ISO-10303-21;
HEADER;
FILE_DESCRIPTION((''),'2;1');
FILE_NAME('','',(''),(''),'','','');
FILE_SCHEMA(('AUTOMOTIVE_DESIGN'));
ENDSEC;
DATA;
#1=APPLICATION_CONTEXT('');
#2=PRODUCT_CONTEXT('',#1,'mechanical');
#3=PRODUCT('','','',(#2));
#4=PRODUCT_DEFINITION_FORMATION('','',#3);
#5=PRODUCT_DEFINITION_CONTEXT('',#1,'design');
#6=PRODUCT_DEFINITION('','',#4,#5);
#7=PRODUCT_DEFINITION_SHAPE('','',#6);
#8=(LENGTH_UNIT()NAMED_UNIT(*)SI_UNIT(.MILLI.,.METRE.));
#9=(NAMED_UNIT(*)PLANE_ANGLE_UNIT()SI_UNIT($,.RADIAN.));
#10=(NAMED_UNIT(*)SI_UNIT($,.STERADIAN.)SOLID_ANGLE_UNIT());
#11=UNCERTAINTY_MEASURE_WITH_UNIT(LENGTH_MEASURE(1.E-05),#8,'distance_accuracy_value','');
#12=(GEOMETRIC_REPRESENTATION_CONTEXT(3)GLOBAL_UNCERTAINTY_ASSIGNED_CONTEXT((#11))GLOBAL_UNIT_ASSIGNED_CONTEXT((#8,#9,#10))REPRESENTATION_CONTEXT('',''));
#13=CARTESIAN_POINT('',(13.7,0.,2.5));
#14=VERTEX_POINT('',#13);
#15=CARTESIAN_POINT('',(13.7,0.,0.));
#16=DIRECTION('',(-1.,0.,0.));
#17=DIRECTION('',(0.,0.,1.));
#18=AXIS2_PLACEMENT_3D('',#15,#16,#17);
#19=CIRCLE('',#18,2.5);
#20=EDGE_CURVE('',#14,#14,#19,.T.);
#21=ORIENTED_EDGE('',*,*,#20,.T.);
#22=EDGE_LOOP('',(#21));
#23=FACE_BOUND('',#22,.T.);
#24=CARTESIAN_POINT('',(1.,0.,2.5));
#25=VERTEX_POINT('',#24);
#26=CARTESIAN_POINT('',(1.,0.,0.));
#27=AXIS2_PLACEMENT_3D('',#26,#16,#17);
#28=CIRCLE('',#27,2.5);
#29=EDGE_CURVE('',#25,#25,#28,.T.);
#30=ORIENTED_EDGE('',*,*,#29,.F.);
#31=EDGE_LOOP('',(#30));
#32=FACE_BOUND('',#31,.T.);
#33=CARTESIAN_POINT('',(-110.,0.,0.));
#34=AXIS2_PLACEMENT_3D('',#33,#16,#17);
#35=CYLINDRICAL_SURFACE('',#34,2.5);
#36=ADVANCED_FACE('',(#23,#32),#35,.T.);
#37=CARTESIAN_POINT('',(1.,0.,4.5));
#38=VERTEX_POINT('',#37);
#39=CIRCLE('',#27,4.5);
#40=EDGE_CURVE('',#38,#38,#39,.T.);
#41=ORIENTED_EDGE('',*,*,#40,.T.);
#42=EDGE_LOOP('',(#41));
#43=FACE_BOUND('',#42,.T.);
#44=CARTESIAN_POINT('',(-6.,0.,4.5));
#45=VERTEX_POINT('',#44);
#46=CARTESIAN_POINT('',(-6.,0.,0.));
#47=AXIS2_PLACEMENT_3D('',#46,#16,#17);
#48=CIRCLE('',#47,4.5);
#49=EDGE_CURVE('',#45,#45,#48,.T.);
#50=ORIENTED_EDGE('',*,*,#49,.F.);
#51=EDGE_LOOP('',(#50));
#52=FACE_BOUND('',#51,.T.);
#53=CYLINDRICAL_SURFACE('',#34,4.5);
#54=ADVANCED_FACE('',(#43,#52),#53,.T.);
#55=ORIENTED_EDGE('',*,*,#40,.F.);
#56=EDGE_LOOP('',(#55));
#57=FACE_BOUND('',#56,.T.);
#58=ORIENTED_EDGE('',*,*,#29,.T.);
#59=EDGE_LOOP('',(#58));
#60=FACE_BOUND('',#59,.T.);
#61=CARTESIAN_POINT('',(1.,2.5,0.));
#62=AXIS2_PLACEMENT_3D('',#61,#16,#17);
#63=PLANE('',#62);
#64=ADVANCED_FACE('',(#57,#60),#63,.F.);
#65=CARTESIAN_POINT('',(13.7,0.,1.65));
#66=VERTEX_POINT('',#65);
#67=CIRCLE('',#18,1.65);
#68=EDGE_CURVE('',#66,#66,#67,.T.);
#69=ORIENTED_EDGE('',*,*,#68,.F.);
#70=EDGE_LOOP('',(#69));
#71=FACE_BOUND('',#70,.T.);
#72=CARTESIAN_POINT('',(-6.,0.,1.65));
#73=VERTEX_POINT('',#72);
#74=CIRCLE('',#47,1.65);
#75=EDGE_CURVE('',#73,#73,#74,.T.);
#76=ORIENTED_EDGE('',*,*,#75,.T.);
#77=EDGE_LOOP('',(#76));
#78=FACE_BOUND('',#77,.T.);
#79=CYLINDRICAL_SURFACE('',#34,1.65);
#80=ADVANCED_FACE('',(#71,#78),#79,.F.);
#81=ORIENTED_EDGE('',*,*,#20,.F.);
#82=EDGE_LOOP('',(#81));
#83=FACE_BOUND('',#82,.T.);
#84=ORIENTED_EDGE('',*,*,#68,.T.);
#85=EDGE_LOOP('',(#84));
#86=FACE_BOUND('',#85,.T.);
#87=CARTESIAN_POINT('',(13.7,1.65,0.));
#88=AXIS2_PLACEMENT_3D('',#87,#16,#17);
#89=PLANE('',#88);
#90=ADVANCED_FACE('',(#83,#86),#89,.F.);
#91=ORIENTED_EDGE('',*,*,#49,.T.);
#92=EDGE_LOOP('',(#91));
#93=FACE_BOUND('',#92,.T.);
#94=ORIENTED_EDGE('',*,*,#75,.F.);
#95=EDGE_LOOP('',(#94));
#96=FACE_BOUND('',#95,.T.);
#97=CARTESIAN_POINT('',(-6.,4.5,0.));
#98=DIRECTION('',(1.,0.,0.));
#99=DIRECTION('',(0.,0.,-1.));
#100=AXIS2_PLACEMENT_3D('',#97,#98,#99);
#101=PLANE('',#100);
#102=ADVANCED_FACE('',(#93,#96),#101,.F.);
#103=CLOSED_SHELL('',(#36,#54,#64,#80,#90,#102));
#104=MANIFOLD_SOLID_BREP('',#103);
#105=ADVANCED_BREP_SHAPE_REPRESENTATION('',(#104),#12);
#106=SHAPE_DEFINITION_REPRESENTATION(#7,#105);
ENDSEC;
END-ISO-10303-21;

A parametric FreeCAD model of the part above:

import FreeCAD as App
import Part
import Sketcher
Q = App.Units.Quantity

doc = App.newDocument("Part")
body = doc.addObject("PartDesign::Body", "Body")

# Sketch on XY plane
sketch1 = body.newObject("Sketcher::SketchObject", "Sketch")
sketch1.AttachmentSupport = (doc.getObject("XY_Plane"), [""])
sketch1.MapMode = "FlatFace"
sketch1.addGeometry([
    Part.LineSegment(App.Vector(-6, 1.6, 0), App.Vector(13.7, 1.6, 0)),  # 0
    Part.LineSegment(App.Vector(13.7, 1.6, 0), App.Vector(13.7, 2.5, 0)),  # 1
    Part.LineSegment(App.Vector(13.7, 2.5, 0), App.Vector(1, 2.5, 0)),  # 2
    Part.LineSegment(App.Vector(1, 2.5, 0), App.Vector(1, 4.5, 0)),  # 3
    Part.LineSegment(App.Vector(1, 4.5, 0), App.Vector(-6, 4.5, 0)),  # 4
    Part.LineSegment(App.Vector(-6, 4.5, 0), App.Vector(-6, 1.6, 0)),  # 5
], False)
sketch1.addConstraint([
    Sketcher.Constraint("Coincident", 0, 2, 1, 1),
    Sketcher.Constraint("Coincident", 1, 2, 2, 1),
    Sketcher.Constraint("Coincident", 2, 2, 3, 1),
    Sketcher.Constraint("Coincident", 3, 2, 4, 1),
    Sketcher.Constraint("Coincident", 4, 2, 5, 1),
    Sketcher.Constraint("Coincident", 5, 2, 0, 1),
    Sketcher.Constraint("Horizontal", 0),
    Sketcher.Constraint("Vertical", 1),
    Sketcher.Constraint("Horizontal", 2),
    Sketcher.Constraint("Vertical", 3),
    Sketcher.Constraint("Horizontal", 4),
    Sketcher.Constraint("Vertical", 5),
    Sketcher.Constraint("DistanceX", 4, 2, 4, 1, Q("7 mm")),
    Sketcher.Constraint("DistanceY", 3, 1, 3, 2, Q("2 mm")),
    Sketcher.Constraint("DistanceX", 0, 1, 0, 2, Q("19.7 mm")),
    Sketcher.Constraint("DistanceX", -1, 1, 2, 2, Q("1 mm")),
    Sketcher.Constraint("DistanceY", 1, 1, 1, 2, Q("0.85 mm")),
    Sketcher.Constraint("DistanceY", -1, 1, 1, 2, Q("2.5 mm")),
])
revolution = body.newObject("PartDesign::Revolution", "Revolution")
revolution.Profile = sketch1
revolution.ReferenceAxis = (sketch1, ["H_Axis"])
revolution.Angle = 360

doc.recompute()
